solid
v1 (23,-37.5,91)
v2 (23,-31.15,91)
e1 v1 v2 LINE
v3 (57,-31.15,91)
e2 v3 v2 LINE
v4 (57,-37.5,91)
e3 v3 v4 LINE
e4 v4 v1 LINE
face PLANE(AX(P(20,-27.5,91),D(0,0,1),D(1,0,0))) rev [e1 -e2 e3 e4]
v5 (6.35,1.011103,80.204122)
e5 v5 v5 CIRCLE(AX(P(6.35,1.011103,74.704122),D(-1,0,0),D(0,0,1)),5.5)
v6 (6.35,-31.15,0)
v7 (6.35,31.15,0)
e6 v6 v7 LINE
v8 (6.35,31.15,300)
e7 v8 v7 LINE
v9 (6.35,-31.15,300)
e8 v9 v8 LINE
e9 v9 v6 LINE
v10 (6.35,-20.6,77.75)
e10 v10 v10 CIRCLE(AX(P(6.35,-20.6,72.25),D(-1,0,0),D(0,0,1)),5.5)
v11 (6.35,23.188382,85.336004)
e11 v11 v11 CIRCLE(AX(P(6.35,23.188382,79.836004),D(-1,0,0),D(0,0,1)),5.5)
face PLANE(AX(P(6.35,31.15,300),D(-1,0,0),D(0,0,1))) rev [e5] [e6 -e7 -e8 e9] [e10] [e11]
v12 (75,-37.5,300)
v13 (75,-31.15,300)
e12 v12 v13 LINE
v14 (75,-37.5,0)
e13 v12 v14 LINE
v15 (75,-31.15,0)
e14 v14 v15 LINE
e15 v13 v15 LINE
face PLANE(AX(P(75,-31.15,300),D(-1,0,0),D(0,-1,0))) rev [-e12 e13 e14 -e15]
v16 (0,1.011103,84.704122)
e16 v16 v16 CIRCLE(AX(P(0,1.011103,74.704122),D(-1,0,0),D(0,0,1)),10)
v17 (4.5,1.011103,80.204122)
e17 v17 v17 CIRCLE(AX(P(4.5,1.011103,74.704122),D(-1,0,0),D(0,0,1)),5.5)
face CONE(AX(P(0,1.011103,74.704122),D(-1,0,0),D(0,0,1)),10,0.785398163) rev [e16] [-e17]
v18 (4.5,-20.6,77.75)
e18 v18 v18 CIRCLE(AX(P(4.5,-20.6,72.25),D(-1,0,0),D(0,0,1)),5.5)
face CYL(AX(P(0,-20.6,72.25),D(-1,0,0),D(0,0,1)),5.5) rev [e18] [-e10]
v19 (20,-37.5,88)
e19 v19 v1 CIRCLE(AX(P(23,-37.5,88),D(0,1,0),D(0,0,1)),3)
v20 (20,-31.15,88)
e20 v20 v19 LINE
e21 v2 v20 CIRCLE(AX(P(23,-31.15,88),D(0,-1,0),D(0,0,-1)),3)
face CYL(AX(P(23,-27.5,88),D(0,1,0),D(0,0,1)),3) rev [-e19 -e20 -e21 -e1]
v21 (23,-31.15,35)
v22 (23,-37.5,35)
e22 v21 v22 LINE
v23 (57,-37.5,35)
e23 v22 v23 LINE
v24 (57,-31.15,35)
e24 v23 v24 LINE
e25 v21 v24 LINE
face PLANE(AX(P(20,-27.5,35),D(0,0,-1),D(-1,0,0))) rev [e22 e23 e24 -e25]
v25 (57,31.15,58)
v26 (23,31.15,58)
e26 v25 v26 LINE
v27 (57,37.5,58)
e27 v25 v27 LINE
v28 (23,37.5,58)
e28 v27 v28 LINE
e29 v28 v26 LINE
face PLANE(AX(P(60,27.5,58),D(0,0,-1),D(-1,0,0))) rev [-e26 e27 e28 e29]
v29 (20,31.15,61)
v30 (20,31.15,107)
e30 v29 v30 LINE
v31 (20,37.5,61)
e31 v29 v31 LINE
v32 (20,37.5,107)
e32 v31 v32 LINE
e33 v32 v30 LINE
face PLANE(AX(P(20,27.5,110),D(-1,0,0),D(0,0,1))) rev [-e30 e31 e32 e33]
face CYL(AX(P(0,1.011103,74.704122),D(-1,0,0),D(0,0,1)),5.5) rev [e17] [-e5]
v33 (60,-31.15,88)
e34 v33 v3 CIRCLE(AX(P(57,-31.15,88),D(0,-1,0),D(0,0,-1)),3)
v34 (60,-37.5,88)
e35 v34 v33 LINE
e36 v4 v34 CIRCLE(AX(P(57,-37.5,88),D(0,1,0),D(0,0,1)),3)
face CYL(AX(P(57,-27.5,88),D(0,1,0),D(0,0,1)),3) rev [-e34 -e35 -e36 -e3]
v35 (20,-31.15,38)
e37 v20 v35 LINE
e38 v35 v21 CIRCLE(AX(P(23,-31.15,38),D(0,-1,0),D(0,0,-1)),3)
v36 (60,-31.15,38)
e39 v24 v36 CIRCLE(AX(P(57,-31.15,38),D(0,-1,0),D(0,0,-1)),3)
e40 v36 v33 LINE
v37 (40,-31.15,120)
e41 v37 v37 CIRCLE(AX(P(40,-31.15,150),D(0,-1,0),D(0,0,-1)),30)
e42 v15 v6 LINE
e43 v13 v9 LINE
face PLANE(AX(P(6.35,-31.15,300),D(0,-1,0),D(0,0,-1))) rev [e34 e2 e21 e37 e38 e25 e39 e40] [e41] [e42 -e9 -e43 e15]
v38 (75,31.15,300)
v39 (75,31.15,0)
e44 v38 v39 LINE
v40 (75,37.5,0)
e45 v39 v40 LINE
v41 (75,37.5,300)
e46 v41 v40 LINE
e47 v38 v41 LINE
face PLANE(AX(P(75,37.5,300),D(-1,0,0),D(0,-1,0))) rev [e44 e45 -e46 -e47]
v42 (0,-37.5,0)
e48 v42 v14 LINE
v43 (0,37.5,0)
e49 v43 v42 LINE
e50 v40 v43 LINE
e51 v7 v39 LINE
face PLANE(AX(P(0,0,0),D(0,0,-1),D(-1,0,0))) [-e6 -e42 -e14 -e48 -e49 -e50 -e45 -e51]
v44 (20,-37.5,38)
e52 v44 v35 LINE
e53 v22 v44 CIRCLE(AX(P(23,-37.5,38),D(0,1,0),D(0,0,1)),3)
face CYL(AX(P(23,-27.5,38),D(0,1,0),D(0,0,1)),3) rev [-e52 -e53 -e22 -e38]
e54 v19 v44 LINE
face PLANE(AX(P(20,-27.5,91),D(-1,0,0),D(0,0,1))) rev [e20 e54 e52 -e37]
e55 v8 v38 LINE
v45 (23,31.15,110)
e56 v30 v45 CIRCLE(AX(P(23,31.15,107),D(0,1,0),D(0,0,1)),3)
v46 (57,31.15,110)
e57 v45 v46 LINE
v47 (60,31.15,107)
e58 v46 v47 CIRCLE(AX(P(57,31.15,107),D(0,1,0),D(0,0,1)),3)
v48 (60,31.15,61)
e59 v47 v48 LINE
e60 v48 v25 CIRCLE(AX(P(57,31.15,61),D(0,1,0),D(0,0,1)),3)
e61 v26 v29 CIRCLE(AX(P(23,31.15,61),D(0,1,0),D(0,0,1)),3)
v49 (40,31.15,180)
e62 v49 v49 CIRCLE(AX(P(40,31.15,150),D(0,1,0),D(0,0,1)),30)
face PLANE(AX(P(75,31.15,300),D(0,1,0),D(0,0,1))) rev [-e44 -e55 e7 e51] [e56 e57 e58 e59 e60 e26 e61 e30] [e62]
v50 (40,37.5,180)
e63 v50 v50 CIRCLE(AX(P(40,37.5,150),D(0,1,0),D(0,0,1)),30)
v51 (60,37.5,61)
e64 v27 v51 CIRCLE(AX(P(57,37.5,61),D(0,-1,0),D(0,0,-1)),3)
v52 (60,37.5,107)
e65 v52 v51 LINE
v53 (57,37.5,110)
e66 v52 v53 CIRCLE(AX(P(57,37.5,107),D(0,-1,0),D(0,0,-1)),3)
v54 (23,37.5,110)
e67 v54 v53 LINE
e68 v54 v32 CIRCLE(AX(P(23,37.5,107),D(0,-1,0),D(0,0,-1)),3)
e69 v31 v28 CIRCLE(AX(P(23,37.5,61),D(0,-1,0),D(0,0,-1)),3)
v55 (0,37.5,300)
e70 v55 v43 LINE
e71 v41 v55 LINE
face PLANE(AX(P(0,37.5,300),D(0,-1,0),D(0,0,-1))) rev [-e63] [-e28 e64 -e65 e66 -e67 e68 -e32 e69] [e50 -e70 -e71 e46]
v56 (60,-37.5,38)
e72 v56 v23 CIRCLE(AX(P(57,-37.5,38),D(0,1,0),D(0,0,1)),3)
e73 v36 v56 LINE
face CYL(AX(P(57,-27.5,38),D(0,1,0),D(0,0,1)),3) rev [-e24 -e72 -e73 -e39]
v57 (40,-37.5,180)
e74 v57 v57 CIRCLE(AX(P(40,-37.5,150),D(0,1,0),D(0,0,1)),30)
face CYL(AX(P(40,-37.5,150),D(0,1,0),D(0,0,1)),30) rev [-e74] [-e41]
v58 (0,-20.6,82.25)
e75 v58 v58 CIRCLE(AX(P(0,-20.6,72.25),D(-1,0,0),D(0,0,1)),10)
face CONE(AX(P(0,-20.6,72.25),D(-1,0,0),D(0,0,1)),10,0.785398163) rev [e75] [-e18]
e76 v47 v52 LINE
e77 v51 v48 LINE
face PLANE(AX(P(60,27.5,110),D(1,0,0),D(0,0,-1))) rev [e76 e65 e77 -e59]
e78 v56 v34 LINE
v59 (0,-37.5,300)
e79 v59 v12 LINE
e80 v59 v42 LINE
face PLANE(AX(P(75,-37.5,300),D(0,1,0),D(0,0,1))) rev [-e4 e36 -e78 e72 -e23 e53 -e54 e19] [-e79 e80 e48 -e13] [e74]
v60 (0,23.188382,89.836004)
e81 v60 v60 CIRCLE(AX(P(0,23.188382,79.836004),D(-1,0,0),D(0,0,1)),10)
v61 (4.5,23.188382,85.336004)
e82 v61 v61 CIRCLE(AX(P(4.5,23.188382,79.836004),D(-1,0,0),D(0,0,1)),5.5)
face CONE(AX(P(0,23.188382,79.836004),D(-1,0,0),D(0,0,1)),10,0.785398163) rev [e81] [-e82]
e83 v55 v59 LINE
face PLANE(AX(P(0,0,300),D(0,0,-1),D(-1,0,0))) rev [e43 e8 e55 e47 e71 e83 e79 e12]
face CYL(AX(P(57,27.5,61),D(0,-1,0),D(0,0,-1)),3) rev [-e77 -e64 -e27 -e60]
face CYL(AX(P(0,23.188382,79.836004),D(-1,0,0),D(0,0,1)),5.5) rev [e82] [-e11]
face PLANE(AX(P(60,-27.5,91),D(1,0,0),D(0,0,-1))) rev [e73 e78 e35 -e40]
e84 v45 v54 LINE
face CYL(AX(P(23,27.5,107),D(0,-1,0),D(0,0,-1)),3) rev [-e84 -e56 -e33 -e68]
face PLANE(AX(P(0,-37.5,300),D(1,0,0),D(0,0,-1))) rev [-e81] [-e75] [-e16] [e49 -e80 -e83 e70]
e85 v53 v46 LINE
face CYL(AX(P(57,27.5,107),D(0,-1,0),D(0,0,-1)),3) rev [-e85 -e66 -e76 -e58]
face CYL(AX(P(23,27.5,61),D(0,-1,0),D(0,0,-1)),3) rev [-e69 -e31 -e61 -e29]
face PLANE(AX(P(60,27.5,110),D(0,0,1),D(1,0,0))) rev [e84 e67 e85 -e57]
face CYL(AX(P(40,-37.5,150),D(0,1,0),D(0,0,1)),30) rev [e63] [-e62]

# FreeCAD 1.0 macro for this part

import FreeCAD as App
import Part
import Sketcher


def edges_at(feature, points):
    """Names of the edges that pass closest to the given points."""
    edges = feature.Shape.Edges
    near = lambda p: min(range(len(edges)), key=lambda i: edges[i].distToShape(Part.Vertex(*p))[0])
    return sorted({f"Edge{near(p) + 1}" for p in points})

doc = App.newDocument("Part")
params = doc.addObject("Spreadsheet::Sheet", "Params")
for row, (alias, value) in enumerate([
    ("sketch1_width", "75 mm"),
    ("sketch1_height", "62.3 mm"),
    ("sketch1_width2", "68.65 mm"),
    ("pad1_length", "300 mm"),
    ("sketch2_diameter", "60 mm"),
    ("sketch3_width", "40 mm"),
    ("sketch3_height", "56 mm"),
    ("pocket2_length", "10 mm"),
    ("sketch4_width", "40 mm"),
    ("sketch4_height", "52 mm"),
    ("pocket3_length", "10 mm"),
    ("fillet_radius", "3 mm"),
    ("sketch5_diameter", "11 mm"),
    ("hole_diameter", "11 mm"),
    ("hole_depth", "20.003 mm"),
    ("hole_csink_diameter", "20 mm"),
], start=1):
    params.set(f"A{row}", alias)
    params.set(f"B{row}", "=" + value)
    params.setAlias(f"B{row}", alias)

body = doc.addObject("PartDesign::Body", "Body")

# Sketch on XY plane
sketch1 = body.newObject("Sketcher::SketchObject", "Sketch")
sketch1.AttachmentSupport = (doc.getObject("XY_Plane"), [""])
sketch1.MapMode = "FlatFace"
sketch1.addGeometry(Part.LineSegment(App.Vector(0, 37.5, 0), App.Vector(0, -37.5, 0)), False)
sketch1.addGeometry(Part.LineSegment(App.Vector(0, -37.5, 0), App.Vector(75, -37.5, 0)), False)
sketch1.addGeometry(Part.LineSegment(App.Vector(75, -37.5, 0), App.Vector(75, -31.15, 0)), False)
sketch1.addGeometry(Part.LineSegment(App.Vector(75, -31.15, 0), App.Vector(6.35, -31.15, 0)), False)
sketch1.addGeometry(Part.LineSegment(App.Vector(6.35, -31.15, 0), App.Vector(6.35, 31.15, 0)), False)
sketch1.addGeometry(Part.LineSegment(App.Vector(6.35, 31.15, 0), App.Vector(75, 31.15, 0)), False)
sketch1.addGeometry(Part.LineSegment(App.Vector(75, 31.15, 0), App.Vector(75, 37.5, 0)), False)
sketch1.addGeometry(Part.LineSegment(App.Vector(75, 37.5, 0), App.Vector(0, 37.5, 0)), False)
sketch1.addConstraint(Sketcher.Constraint("Coincident", 0, 2, 1, 1))
sketch1.addConstraint(Sketcher.Constraint("Coincident", 1, 2, 2, 1))
sketch1.addConstraint(Sketcher.Constraint("Coincident", 2, 2, 3, 1))
sketch1.addConstraint(Sketcher.Constraint("Coincident", 3, 2, 4, 1))
sketch1.addConstraint(Sketcher.Constraint("Coincident", 4, 2, 5, 1))
sketch1.addConstraint(Sketcher.Constraint("Coincident", 5, 2, 6, 1))
sketch1.addConstraint(Sketcher.Constraint("Coincident", 6, 2, 7, 1))
sketch1.addConstraint(Sketcher.Constraint("Coincident", 7, 2, 0, 1))
sketch1.addConstraint(Sketcher.Constraint("Vertical", 0))
sketch1.addConstraint(Sketcher.Constraint("Horizontal", 1))
sketch1.addConstraint(Sketcher.Constraint("Vertical", 2))
sketch1.addConstraint(Sketcher.Constraint("Horizontal", 3))
sketch1.addConstraint(Sketcher.Constraint("Vertical", 4))
sketch1.addConstraint(Sketcher.Constraint("Horizontal", 5))
sketch1.addConstraint(Sketcher.Constraint("Vertical", 6))
sketch1.addConstraint(Sketcher.Constraint("Horizontal", 7))
sketch1.addConstraint(Sketcher.Constraint("Symmetric", 0, 2, 7, 2, -1, 1))
sketch1.addConstraint(Sketcher.Constraint("Symmetric", 2, 2, 5, 2, -1))
sketch1.addConstraint(Sketcher.Constraint("Equal", 7, 0))
sketch1.addConstraint(Sketcher.Constraint("DistanceX", 1, 1, 1, 2, 75.0))
sketch1.addConstraint(Sketcher.Constraint("DistanceY", 4, 1, 4, 2, 62.3))
sketch1.addConstraint(Sketcher.Constraint("DistanceX", 3, 2, 3, 1, 68.65))
sketch1.setExpression("Constraints[19]", "Params.sketch1_width")
sketch1.setExpression("Constraints[20]", "Params.sketch1_height")
sketch1.setExpression("Constraints[21]", "Params.sketch1_width2")
pad1 = body.newObject("PartDesign::Pad", "Pad")
pad1.Profile = sketch1
pad1.setExpression("Length", "Params.pad1_length")

# Sketch on XZ plane
sketch2 = body.newObject("Sketcher::SketchObject", "Sketch001")
sketch2.AttachmentSupport = (doc.getObject("XZ_Plane"), [""])
sketch2.MapMode = "FlatFace"
sketch2.AttachmentOffset = App.Placement(App.Vector(0, 0, -37.5), App.Rotation())
sketch2.addGeometry(Part.Circle(App.Vector(40, 150, 0), App.Vector(0, 0, 1), 30), False)
sketch2.addConstraint(Sketcher.Constraint("Diameter", 0, 60.0))
sketch2.addConstraint(Sketcher.Constraint("DistanceX", -1, 1, 0, 3, 40.0))
sketch2.addConstraint(Sketcher.Constraint("DistanceY", -1, 1, 0, 3, 150.0))
sketch2.setExpression("Constraints[0]", "Params.sketch2_diameter")
pocket1 = body.newObject("PartDesign::Pocket", "Pocket")
pocket1.Profile = sketch2
pocket1.Type = "ThroughAll"
pocket1.Reversed = True

# Sketch on XZ plane
sketch3 = body.newObject("Sketcher::SketchObject", "Sketch002")
sketch3.AttachmentSupport = (doc.getObject("XZ_Plane"), [""])
sketch3.MapMode = "FlatFace"
sketch3.AttachmentOffset = App.Placement(App.Vector(0, 0, 37.5), App.Rotation())
sketch3.addGeometry(Part.LineSegment(App.Vector(20, 91, 0), App.Vector(20, 35, 0)), False)
sketch3.addGeometry(Part.LineSegment(App.Vector(20, 35, 0), App.Vector(60, 35, 0)), False)
sketch3.addGeometry(Part.LineSegment(App.Vector(60, 35, 0), App.Vector(60, 91, 0)), False)
sketch3.addGeometry(Part.LineSegment(App.Vector(60, 91, 0), App.Vector(20, 91, 0)), False)
sketch3.addConstraint(Sketcher.Constraint("Coincident", 0, 2, 1, 1))
sketch3.addConstraint(Sketcher.Constraint("Coincident", 1, 2, 2, 1))
sketch3.addConstraint(Sketcher.Constraint("Coincident", 2, 2, 3, 1))
sketch3.addConstraint(Sketcher.Constraint("Coincident", 3, 2, 0, 1))
sketch3.addConstraint(Sketcher.Constraint("Vertical", 0))
sketch3.addConstraint(Sketcher.Constraint("Horizontal", 1))
sketch3.addConstraint(Sketcher.Constraint("Vertical", 2))
sketch3.addConstraint(Sketcher.Constraint("Horizontal", 3))
sketch3.addConstraint(Sketcher.Constraint("DistanceX", 1, 1, 1, 2, 40.0))
sketch3.addConstraint(Sketcher.Constraint("DistanceY", 0, 2, 0, 1, 56.0))
sketch3.addConstraint(Sketcher.Constraint("DistanceX", -1, 1, 0, 2, 20.0))
sketch3.addConstraint(Sketcher.Constraint("DistanceY", -1, 1, 0, 2, 35.0))
sketch3.setExpression("Constraints[8]", "Params.sketch3_width")
sketch3.setExpression("Constraints[9]", "Params.sketch3_height")
pocket2 = body.newObject("PartDesign::Pocket", "Pocket001")
pocket2.Profile = sketch3
pocket2.setExpression("Length", "Params.pocket2_length")

# Sketch on XZ plane
sketch4 = body.newObject("Sketcher::SketchObject", "Sketch003")
sketch4.AttachmentSupport = (doc.getObject("XZ_Plane"), [""])
sketch4.MapMode = "FlatFace"
sketch4.AttachmentOffset = App.Placement(App.Vector(0, 0, -37.5), App.Rotation())
sketch4.addGeometry(Part.LineSegment(App.Vector(20, 58, 0), App.Vector(20, 110, 0)), False)
sketch4.addGeometry(Part.LineSegment(App.Vector(20, 110, 0), App.Vector(60, 110, 0)), False)
sketch4.addGeometry(Part.LineSegment(App.Vector(60, 110, 0), App.Vector(60, 58, 0)), False)
sketch4.addGeometry(Part.LineSegment(App.Vector(60, 58, 0), App.Vector(20, 58, 0)), False)
sketch4.addConstraint(Sketcher.Constraint("Coincident", 0, 2, 1, 1))
sketch4.addConstraint(Sketcher.Constraint("Coincident", 1, 2, 2, 1))
sketch4.addConstraint(Sketcher.Constraint("Coincident", 2, 2, 3, 1))
sketch4.addConstraint(Sketcher.Constraint("Coincident", 3, 2, 0, 1))
sketch4.addConstraint(Sketcher.Constraint("Vertical", 0))
sketch4.addConstraint(Sketcher.Constraint("Horizontal", 1))
sketch4.addConstraint(Sketcher.Constraint("Vertical", 2))
sketch4.addConstraint(Sketcher.Constraint("Horizontal", 3))
sketch4.addConstraint(Sketcher.Constraint("DistanceX", 1, 1, 1, 2, 40.0))
sketch4.addConstraint(Sketcher.Constraint("DistanceY", 0, 1, 0, 2, 52.0))
sketch4.addConstraint(Sketcher.Constraint("DistanceX", -1, 1, 0, 2, 20.0))
sketch4.addConstraint(Sketcher.Constraint("DistanceY", -1, 1, 0, 2, 110.0))
sketch4.setExpression("Constraints[8]", "Params.sketch4_width")
sketch4.setExpression("Constraints[9]", "Params.sketch4_height")
pocket3 = body.newObject("PartDesign::Pocket", "Pocket002")
pocket3.Profile = sketch4
pocket3.setExpression("Length", "Params.pocket3_length")
pocket3.Reversed = True
doc.recompute()

fillet = body.newObject("PartDesign::Fillet", "Fillet")
fillet.Base = (pocket3, edges_at(pocket3, [
    (20, -34.325, 91),
    (60, -34.325, 91),
    (60, -34.325, 35),
    (20, -34.325, 35),
    (60, 34.325, 110),
    (20, 34.325, 110),
    (20, 34.325, 58),
    (60, 34.325, 58),
]))
fillet.setExpression("Radius", "Params.fillet_radius")

# Sketch on YZ plane
sketch5 = body.newObject("Sketcher::SketchObject", "Sketch004")
sketch5.AttachmentSupport = (doc.getObject("YZ_Plane"), [""])
sketch5.MapMode = "FlatFace"
sketch5.addGeometry(Part.Circle(App.Vector(1.011103, 74.704122, 0), App.Vector(0, 0, 1), 5.5), False)
sketch5.addGeometry(Part.Circle(App.Vector(-20.6, 72.25, 0), App.Vector(0, 0, 1), 5.5), False)
sketch5.addGeometry(Part.Circle(App.Vector(23.188382, 79.836004, 0), App.Vector(0, 0, 1), 5.5), False)
sketch5.addConstraint(Sketcher.Constraint("Equal", 0, 1))
sketch5.addConstraint(Sketcher.Constraint("Equal", 1, 2))
sketch5.addConstraint(Sketcher.Constraint("Diameter", 0, 11.0))
sketch5.addConstraint(Sketcher.Constraint("DistanceX", 1, 3, -1, 1, 20.6))
sketch5.addConstraint(Sketcher.Constraint("DistanceY", -1, 1, 1, 3, 72.25))
sketch5.addConstraint(Sketcher.Constraint("DistanceY", -1, 1, 0, 3, 74.704122))
sketch5.addConstraint(Sketcher.Constraint("DistanceX", -1, 1, 2, 3, 23.188382))
sketch5.addConstraint(Sketcher.Constraint("DistanceX", 0, 3, 2, 3, 22.177278))
sketch5.addConstraint(Sketcher.Constraint("DistanceY", -1, 1, 2, 3, 79.836004))
sketch5.setExpression("Constraints[2]", "Params.sketch5_diameter")
doc.recompute()
hole = body.newObject("PartDesign::Hole", "Hole")
hole.Profile = sketch5
hole.ThreadType = "None"
hole.setExpression("Diameter", "Params.hole_diameter")
hole.DepthType = "Dimension"
hole.setExpression("Depth", "Params.hole_depth")
hole.DrillPoint = "Angled"
hole.DrillPointAngle = 118
hole.HoleCutType = "Countersink"
hole.setExpression("HoleCutDiameter", "Params.hole_csink_diameter")
hole.HoleCutCountersinkAngle = 90
hole.Reversed = True

doc.recompute()
